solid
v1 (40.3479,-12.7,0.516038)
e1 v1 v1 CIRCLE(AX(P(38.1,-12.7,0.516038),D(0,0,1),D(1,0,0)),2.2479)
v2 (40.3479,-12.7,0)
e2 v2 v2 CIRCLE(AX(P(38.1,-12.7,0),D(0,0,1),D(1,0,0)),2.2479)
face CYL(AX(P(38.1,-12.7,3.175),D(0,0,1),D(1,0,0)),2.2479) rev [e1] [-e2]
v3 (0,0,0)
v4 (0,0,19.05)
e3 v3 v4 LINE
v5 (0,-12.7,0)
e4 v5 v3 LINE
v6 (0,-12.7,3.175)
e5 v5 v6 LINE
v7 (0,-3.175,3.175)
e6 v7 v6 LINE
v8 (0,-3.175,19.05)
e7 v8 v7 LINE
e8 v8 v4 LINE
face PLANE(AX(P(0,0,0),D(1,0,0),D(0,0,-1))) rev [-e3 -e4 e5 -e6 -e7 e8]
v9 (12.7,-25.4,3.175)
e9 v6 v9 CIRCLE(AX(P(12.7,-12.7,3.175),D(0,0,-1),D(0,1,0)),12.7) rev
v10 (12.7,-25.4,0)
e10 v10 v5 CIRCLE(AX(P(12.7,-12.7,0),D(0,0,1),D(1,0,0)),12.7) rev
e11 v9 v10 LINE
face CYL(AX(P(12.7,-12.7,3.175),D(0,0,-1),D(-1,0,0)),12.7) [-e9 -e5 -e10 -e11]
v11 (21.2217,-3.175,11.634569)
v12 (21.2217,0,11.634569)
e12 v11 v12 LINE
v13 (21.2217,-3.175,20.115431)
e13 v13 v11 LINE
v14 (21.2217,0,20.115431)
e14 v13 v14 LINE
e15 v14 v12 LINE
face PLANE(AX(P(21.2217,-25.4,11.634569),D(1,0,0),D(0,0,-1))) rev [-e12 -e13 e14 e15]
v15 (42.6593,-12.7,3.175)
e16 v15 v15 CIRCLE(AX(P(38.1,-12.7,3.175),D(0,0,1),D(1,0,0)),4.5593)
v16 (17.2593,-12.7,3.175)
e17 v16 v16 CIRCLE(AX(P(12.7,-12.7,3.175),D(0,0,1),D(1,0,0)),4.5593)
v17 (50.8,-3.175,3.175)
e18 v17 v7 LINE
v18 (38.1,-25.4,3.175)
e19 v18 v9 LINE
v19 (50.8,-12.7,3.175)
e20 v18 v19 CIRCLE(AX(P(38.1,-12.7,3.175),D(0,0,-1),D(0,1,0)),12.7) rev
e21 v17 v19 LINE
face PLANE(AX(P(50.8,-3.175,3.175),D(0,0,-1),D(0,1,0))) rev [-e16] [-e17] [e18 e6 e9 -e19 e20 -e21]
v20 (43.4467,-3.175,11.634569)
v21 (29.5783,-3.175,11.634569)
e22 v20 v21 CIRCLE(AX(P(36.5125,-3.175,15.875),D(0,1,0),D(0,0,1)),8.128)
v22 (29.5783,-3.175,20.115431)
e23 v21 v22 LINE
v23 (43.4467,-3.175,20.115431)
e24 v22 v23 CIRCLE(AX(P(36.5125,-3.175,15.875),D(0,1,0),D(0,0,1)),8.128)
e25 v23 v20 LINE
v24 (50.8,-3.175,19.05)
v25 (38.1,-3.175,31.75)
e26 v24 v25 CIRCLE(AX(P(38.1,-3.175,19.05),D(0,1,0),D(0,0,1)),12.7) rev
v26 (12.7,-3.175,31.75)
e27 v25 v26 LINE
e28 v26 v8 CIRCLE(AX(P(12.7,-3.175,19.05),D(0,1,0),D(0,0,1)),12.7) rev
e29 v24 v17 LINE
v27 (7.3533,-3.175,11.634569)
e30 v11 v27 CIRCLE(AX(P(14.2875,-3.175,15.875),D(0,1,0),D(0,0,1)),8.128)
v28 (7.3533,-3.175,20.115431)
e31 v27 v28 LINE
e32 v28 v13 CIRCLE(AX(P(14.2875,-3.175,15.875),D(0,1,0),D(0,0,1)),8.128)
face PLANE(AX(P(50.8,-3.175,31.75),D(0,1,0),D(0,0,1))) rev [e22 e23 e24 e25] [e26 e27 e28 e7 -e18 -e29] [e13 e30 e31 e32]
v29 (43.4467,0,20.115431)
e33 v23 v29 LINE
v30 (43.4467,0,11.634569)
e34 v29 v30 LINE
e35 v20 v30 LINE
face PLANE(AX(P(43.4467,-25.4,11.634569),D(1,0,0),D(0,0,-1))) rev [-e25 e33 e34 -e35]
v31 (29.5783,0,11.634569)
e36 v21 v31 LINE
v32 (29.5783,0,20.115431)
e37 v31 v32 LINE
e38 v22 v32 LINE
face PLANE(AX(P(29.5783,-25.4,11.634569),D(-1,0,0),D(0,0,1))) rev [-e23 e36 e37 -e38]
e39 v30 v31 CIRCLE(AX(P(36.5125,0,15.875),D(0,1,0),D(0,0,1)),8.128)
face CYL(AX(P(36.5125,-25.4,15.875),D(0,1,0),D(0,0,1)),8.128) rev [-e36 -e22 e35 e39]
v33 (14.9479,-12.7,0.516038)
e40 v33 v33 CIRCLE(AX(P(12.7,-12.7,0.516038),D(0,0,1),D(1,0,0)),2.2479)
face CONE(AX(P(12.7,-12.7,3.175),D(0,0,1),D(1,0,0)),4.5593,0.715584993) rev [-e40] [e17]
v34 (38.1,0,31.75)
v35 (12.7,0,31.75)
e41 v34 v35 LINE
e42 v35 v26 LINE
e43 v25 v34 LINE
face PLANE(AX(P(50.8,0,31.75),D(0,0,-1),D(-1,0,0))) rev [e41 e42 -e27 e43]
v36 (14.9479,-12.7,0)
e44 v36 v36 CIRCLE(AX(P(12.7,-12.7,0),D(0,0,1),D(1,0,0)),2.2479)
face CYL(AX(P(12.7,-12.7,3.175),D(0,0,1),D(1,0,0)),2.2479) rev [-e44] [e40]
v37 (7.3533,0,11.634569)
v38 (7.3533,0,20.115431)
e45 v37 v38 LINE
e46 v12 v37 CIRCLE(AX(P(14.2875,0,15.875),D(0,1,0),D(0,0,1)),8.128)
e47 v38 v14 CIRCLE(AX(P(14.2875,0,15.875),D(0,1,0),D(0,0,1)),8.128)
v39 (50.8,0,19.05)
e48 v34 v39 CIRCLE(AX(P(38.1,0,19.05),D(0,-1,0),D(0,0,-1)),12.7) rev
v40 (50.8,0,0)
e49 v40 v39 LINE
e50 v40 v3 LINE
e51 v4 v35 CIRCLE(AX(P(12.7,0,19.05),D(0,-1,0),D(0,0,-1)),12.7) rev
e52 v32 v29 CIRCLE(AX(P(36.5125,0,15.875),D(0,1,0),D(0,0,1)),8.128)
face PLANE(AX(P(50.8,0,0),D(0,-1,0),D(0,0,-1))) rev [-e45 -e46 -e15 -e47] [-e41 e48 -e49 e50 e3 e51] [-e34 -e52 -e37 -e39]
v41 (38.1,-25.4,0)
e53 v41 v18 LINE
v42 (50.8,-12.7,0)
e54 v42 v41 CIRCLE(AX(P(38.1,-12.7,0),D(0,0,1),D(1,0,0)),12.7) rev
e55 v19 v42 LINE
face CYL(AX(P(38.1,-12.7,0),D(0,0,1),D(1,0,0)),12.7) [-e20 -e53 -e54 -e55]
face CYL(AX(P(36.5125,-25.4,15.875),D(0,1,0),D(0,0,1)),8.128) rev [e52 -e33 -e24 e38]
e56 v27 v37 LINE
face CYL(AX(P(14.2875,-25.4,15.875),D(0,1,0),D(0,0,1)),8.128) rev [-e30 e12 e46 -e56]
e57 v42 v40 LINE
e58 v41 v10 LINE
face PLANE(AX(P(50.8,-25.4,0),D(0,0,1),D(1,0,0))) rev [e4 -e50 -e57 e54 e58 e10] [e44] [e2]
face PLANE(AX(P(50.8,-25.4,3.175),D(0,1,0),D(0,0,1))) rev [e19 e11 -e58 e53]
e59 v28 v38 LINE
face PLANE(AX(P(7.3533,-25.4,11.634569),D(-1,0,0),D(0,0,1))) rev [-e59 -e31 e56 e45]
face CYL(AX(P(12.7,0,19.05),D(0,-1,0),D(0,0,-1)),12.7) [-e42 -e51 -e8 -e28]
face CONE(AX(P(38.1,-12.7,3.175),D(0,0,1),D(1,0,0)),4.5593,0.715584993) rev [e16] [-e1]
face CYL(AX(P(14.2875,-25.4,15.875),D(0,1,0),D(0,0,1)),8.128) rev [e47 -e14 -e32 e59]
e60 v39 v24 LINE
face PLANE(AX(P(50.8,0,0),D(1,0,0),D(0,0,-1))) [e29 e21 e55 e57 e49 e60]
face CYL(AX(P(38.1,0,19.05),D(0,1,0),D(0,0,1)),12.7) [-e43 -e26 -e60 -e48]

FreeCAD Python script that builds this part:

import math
import FreeCAD as App
import Part
import Sketcher

V = App.Vector
Q = App.Units.Quantity


def edges_at(feature, points):
    """Names of the edges that pass closest to the given points."""
    edges = feature.Shape.Edges
    near = lambda p: min(range(len(edges)), key=lambda i: edges[i].distToShape(Part.Vertex(*p))[0])
    return sorted({f"Edge{near(p) + 1}" for p in points})


def add_polygon(sketch, points):
    """Adds a closed chain of lines whose ends are joined by coincident constraints."""
    first, n = sketch.GeometryCount, len(points)
    for a, b in zip(points, points[1:] + points[:1]):
        sketch.addGeometry(Part.LineSegment(App.Vector(*a, 0), App.Vector(*b, 0)), False)
    for i in range(n):
        sketch.addConstraint(Sketcher.Constraint("Coincident", first + i, 2, first + (i + 1) % n, 1))

doc = App.newDocument("Part")
body = doc.addObject("PartDesign::Body", "Body")

sketch1 = doc.addObject("Sketcher::SketchObject", "Sketch")
body.addObject(sketch1)
sketch1.AttachmentSupport = (doc.YZ_Plane, [""])
sketch1.MapMode = "FlatFace"
add_polygon(sketch1, [(0, 0), (0, 31.8), (-3.2, 31.8), (-3.2, 3.2), (-25.4, 3.2), (-25.4, 0)])
sketch1.addConstraint([
    Sketcher.Constraint("Vertical", 0),
    Sketcher.Constraint("Horizontal", 1),
    Sketcher.Constraint("Vertical", 2),
    Sketcher.Constraint("Horizontal", 3),
    Sketcher.Constraint("Vertical", 4),
    Sketcher.Constraint("Horizontal", 5),
    Sketcher.Constraint("Coincident", 5, 2, -1, 1),
    Sketcher.Constraint("Equal", 1, 4),
    Sketcher.Constraint("DistanceX", 5, 1, 5, 2, Q("1 in")),
    Sketcher.Constraint("DistanceY", 0, 1, 0, 2, Q("1.25 in")),
    Sketcher.Constraint("DistanceX", 1, 2, 1, 1, Q("0.125 in")),
])
pad1 = doc.addObject("PartDesign::Pad", "Pad")
body.addObject(pad1)
pad1.Profile = sketch1
pad1.Length = Q("2 in")

sketch2 = doc.addObject("Sketcher::SketchObject", "Sketch001")
body.addObject(sketch2)
sketch2.AttachmentSupport = (doc.XZ_Plane, [""])
sketch2.MapMode = "FlatFace"
sketch2.addGeometry([
    Part.LineSegment(V(7, 12, 0), V(7, 20, 0)),
    Part.ArcOfCircle(Part.Circle(V(14, 16, 0), V(0, 0, 1), 8), math.radians(31), math.radians(149)),
    Part.LineSegment(V(21, 20, 0), V(21, 12, 0)),
    Part.ArcOfCircle(Part.Circle(V(14, 16, 0), V(0, 0, 1), 8), math.radians(-149), math.radians(-31)),
    Part.LineSegment(V(30, 12, 0), V(30, 20, 0)),
    Part.ArcOfCircle(Part.Circle(V(37, 16, 0), V(0, 0, 1), 8), math.radians(31), math.radians(149)),
    Part.LineSegment(V(43, 20, 0), V(43, 12, 0)),
    Part.ArcOfCircle(Part.Circle(V(37, 16, 0), V(0, 0, 1), 8), math.radians(-149), math.radians(-31)),
], False)
sketch2.addConstraint([
    Sketcher.Constraint("Coincident", 0, 2, 1, 2),
    Sketcher.Constraint("Coincident", 1, 1, 2, 1),
    Sketcher.Constraint("Coincident", 2, 2, 3, 2),
    Sketcher.Constraint("Coincident", 3, 1, 0, 1),
    Sketcher.Constraint("Coincident", 4, 2, 5, 2),
    Sketcher.Constraint("Coincident", 5, 1, 6, 1),
    Sketcher.Constraint("Coincident", 6, 2, 7, 2),
    Sketcher.Constraint("Coincident", 7, 1, 4, 1),
    Sketcher.Constraint("Vertical", 0),
    Sketcher.Constraint("Vertical", 2),
    Sketcher.Constraint("Vertical", 4),
    Sketcher.Constraint("Vertical", 6),
    Sketcher.Constraint("Coincident", 3, 3, 1, 3),
    Sketcher.Constraint("Coincident", 7, 3, 5, 3),
    Sketcher.Constraint("Equal", 1, 3),
    Sketcher.Constraint("Equal", 3, 5),
    Sketcher.Constraint("Equal", 5, 7),
    Sketcher.Constraint("Horizontal", 3, 3, 5, 3),
    Sketcher.Constraint("Horizontal", 0, 2, 1, 1),
    Sketcher.Constraint("Horizontal", 1, 1, 4, 2),
    Sketcher.Constraint("Horizontal", 4, 2, 5, 1),
    Sketcher.Constraint("Radius", 1, Q("0.32 in")),
    Sketcher.Constraint("DistanceX", -1, 1, 1, 3, Q("0.5625 in")),
    Sketcher.Constraint("DistanceY", -1, 1, 1, 3, Q("0.625 in")),
    Sketcher.Constraint("DistanceX", -1, 1, 5, 3, Q("1.4375 in")),
    Sketcher.Constraint("DistanceX", 0, 2, 1, 3, Q("0.273 in")),
])
pocket1 = doc.addObject("PartDesign::Pocket", "Pocket")
body.addObject(pocket1)
pocket1.Profile = sketch2
pocket1.Type = "ThroughAll"
pocket1.Reversed = True
doc.recompute()

fillet = doc.addObject("PartDesign::Fillet", "Fillet")
body.addObject(fillet)
fillet.Base = (pocket1, edges_at(pocket1, [
    (50.8, -1.587, 31.75),
    (50.8, -25.4, 1.587),
    (0, -25.4, 1.587),
    (0, -1.587, 31.75),
]))
fillet.Radius = Q("0.5 in")

sketch3 = doc.addObject("Sketcher::SketchObject", "Sketch002")
body.addObject(sketch3)
sketch3.AttachmentSupport = (doc.YZ_Plane, [""])
sketch3.MapMode = "FlatFace"
sketch3.AttachmentOffset = App.Placement(V(0, 0, 0.5 * 25.4), App.Rotation())
add_polygon(sketch3, [(-12.7, 0), (-12.7, 3.2), (-17.3, 3.2), (-14.9, 0.5), (-14.9, 0)])
sketch3.addGeometry(Part.LineSegment(V(-12.7, 3.2, 0), V(-12.7, 0, 0)), True)
sketch3.addConstraint([
    Sketcher.Constraint("Vertical", 0),
    Sketcher.Constraint("Horizontal", 1),
    Sketcher.Constraint("Vertical", 3),
    Sketcher.Constraint("Horizontal", 4),
    Sketcher.Constraint("Vertical", 5),
    Sketcher.Constraint("Coincident", 5, 1, 0, 2),
    Sketcher.Constraint("PointOnObject", 3, 2, -1),
    Sketcher.Constraint("PointOnObject", 5, 2, -1),
    Sketcher.Constraint("Angle", 2, Q("-49 deg")),
    Sketcher.Constraint("DistanceX", 0, 2, -1, 1, Q("0.5 in")),
    Sketcher.Constraint("DistanceY", 0, 1, 0, 2, Q("0.125 in")),
    Sketcher.Constraint("DistanceX", 1, 2, 1, 1, Q("0.1795 in")),
    Sketcher.Constraint("DistanceX", 4, 1, 4, 2, Q("0.0885 in")),
])
groove = doc.addObject("PartDesign::Groove", "Groove")
body.addObject(groove)
groove.Profile = sketch3
groove.ReferenceAxis = (sketch3, ["Axis0"])
groove.Angle = 360
doc.recompute()

linearpattern = doc.addObject("PartDesign::LinearPattern", "LinearPattern")
body.addObject(linearpattern)
linearpattern.Originals = [groove]
linearpattern.Direction = (doc.X_Axis, [""])
linearpattern.Mode = "offset"
linearpattern.Offset = Q("1 in")
linearpattern.Occurrences = 2
body.Tip = linearpattern

doc.recompute()
